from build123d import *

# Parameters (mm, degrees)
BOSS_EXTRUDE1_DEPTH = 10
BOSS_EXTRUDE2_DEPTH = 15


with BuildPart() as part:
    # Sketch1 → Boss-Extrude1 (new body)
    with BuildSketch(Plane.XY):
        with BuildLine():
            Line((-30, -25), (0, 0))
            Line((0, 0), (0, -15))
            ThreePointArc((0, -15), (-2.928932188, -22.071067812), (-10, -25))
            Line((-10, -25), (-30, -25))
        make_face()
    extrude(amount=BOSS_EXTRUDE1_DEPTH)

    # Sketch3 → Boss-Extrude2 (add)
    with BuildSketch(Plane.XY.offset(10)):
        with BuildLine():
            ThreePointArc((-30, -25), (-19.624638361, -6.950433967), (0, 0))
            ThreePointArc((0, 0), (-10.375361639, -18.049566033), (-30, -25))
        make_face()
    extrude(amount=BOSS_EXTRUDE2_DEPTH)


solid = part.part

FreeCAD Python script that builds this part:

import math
import FreeCAD as App
import Part
import Sketcher

doc = App.newDocument("Part")
body = doc.addObject("PartDesign::Body", "Body")

# Sketch on XY plane
sketch1 = body.newObject("Sketcher::SketchObject", "Sketch")
sketch1.AttachmentSupport = (doc.getObject("XY_Plane"), [""])
sketch1.MapMode = "FlatFace"
sketch1.addGeometry([
    Part.LineSegment(App.Vector(0, 0, 0), App.Vector(-30, -25, 0)),
    Part.LineSegment(App.Vector(-30, -25, 0), App.Vector(-10, -25, 0)),
    Part.ArcOfCircle(Part.Circle(App.Vector(-10, -15, 0), App.Vector(0, 0, 1), 10), math.radians(-90), math.radians(0)),
    Part.LineSegment(App.Vector(0, -15, 0), App.Vector(0, 0, 0)),
], False)
sketch1.addConstraint([
    Sketcher.Constraint("Coincident", 0, 2, 1, 1),
    Sketcher.Constraint("Tangent", 1, 2, 2, 1),
    Sketcher.Constraint("Tangent", 2, 2, 3, 1),
    Sketcher.Constraint("Coincident", 3, 2, 0, 1),
    Sketcher.Constraint("Horizontal", 1),
    Sketcher.Constraint("Vertical", 3),
    Sketcher.Constraint("Coincident", 3, 2, -1, 1),
    Sketcher.Constraint("Radius", 2, 10.0),
    Sketcher.Constraint("DistanceX", 1, 1, 1, 2, 20.0),
    Sketcher.Constraint("DistanceY", 3, 1, 3, 2, 15.0),
])
pad1 = body.newObject("PartDesign::Pad", "Pad")
pad1.Profile = sketch1
pad1.Length = 10

# Sketch on XY plane
sketch2 = body.newObject("Sketcher::SketchObject", "Sketch001")
sketch2.AttachmentSupport = (doc.getObject("XY_Plane"), [""])
sketch2.MapMode = "FlatFace"
sketch2.AttachmentOffset = App.Placement(App.Vector(0, 0, 10), App.Rotation())
sketch2.addGeometry([
    Part.ArcOfCircle(Part.Circle(App.Vector(0, -30, 0), App.Vector(0, 0, 1), 30), math.radians(89), math.radians(170)),
    Part.ArcOfCircle(Part.Circle(App.Vector(-30, 5, 0), App.Vector(0, 0, 1), 30), math.radians(-91), math.radians(-10)),
], False)
sketch2.addConstraint([
    Sketcher.Constraint("Coincident", 0, 1, 1, 2),
    Sketcher.Constraint("Coincident", 1, 1, 0, 2),
    Sketcher.Constraint("Coincident", 0, 1, -1, 1),
    Sketcher.Constraint("Equal", 0, 1),
    Sketcher.Constraint("Radius", 0, 30.0),
    Sketcher.Constraint("DistanceX", 1, 1, -1, 1, 30.0),
    Sketcher.Constraint("DistanceY", 1, 1, -1, 1, 25.0),
])
pad2 = body.newObject("PartDesign::Pad", "Pad001")
pad2.Profile = sketch2
pad2.Length = 15

doc.recompute()
